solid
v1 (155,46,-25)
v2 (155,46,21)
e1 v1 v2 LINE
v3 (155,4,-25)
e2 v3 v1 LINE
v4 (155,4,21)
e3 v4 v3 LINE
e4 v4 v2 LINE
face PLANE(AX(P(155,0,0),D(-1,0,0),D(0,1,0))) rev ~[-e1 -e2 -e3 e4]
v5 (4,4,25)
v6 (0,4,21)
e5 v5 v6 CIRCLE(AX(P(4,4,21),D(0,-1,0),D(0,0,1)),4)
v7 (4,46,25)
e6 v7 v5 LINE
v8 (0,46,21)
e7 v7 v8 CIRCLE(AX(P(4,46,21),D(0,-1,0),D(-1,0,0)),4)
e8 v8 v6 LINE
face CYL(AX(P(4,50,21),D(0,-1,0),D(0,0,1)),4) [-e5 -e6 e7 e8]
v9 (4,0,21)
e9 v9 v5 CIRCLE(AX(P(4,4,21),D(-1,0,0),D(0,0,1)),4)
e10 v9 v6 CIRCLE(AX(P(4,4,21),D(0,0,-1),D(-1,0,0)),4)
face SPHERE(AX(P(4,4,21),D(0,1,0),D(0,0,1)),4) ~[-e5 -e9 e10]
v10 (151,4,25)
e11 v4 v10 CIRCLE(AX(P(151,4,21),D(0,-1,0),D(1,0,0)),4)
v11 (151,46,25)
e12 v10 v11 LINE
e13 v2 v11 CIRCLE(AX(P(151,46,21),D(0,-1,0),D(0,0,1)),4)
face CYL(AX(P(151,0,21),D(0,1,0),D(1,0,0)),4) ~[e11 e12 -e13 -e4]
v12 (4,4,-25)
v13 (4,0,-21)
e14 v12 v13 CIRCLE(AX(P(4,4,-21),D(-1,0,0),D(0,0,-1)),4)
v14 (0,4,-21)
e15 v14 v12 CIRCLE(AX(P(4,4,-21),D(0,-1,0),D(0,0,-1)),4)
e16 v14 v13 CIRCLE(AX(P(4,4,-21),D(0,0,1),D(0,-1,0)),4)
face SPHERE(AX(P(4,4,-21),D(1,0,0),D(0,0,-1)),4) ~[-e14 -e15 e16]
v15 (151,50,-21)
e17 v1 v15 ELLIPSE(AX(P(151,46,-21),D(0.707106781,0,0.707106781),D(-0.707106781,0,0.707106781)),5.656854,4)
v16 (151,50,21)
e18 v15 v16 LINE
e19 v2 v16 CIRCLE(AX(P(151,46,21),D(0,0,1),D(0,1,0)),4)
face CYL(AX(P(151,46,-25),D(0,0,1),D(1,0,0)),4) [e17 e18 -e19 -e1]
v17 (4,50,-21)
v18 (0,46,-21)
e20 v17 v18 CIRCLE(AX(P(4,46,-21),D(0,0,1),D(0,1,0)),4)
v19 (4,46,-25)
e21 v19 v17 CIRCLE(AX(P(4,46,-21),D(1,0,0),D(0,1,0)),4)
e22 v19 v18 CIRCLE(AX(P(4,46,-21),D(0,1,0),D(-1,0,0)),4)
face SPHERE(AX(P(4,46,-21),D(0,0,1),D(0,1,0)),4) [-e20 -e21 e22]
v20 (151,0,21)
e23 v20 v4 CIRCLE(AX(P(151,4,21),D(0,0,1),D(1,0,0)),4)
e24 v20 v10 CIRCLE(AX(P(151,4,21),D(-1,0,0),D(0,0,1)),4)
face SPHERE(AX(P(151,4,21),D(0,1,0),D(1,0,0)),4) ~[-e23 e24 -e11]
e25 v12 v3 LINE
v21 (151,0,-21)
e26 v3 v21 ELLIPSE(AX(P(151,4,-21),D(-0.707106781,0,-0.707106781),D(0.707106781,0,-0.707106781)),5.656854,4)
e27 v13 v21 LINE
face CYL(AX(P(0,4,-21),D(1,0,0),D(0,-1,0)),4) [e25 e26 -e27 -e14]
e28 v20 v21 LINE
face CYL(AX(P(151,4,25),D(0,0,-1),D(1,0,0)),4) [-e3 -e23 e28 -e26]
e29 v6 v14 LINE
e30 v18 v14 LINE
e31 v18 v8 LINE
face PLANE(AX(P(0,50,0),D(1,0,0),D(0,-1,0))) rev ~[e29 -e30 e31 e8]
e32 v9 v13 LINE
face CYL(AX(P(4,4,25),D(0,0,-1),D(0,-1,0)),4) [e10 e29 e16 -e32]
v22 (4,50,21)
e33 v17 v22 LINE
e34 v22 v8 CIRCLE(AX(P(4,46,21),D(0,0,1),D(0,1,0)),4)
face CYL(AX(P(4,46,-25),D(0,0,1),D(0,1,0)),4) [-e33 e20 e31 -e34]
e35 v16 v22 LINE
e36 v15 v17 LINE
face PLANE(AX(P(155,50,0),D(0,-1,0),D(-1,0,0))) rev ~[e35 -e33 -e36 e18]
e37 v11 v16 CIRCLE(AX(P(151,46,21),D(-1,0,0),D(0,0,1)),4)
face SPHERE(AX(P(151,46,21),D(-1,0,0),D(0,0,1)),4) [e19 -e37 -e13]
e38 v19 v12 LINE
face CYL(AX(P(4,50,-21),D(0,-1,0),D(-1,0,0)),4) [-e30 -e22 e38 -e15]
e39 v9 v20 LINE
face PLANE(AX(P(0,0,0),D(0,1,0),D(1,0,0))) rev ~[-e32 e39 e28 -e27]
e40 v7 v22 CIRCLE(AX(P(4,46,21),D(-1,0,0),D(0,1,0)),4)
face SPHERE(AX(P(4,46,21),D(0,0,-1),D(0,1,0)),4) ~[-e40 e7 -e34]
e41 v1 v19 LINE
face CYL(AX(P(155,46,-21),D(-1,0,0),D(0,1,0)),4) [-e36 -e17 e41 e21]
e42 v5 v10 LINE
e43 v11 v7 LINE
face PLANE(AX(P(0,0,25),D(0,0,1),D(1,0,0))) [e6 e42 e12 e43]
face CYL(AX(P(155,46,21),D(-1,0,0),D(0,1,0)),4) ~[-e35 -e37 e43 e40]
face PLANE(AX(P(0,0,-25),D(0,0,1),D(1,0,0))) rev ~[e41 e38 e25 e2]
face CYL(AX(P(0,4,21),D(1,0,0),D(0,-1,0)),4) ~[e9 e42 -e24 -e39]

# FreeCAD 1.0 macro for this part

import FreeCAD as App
import Part
import Sketcher
Q = App.Units.Quantity


def edges_at(feature, points):
    """Names of the edges that pass closest to the given points."""
    edges = feature.Shape.Edges
    near = lambda p: min(range(len(edges)), key=lambda i: edges[i].distToShape(Part.Vertex(*p))[0])
    return sorted({f"Edge{near(p) + 1}" for p in points})


def add_polygon(sketch, points):
    """Adds a closed chain of lines whose ends are joined by coincident constraints."""
    first, n = sketch.GeometryCount, len(points)
    for a, b in zip(points, points[1:] + points[:1]):
        sketch.addGeometry(Part.LineSegment(App.Vector(*a, 0), App.Vector(*b, 0)), False)
    for i in range(n):
        sketch.addConstraint(Sketcher.Constraint("Coincident", first + i, 2, first + (i + 1) % n, 1))

doc = App.newDocument("Part")
params = doc.addObject("Spreadsheet::Sheet", "Params")
for row, (alias, value) in enumerate([
    ("sketch1_width", "155 mm"),
    ("sketch1_height", "50 mm"),
    ("pad1_length", "50 mm"),
    ("fillet_radius", "4 mm"),
], start=1):
    params.set(f"A{row}", alias)
    params.set(f"B{row}", "=" + value)
    params.setAlias(f"B{row}", alias)

body = doc.addObject("PartDesign::Body", "Body")

# Sketch on XY plane
sketch1 = doc.addObject("Sketcher::SketchObject", "Sketch")
body.addObject(sketch1)
sketch1.AttachmentSupport = (doc.XY_Plane, [""])
sketch1.MapMode = "FlatFace"
add_polygon(sketch1, [(155, 0), (155, 50), (0, 50), (0, 0)])  # lines 0-3
sketch1.addConstraint([
    Sketcher.Constraint("Vertical", 0),
    Sketcher.Constraint("Horizontal", 1),
    Sketcher.Constraint("Vertical", 2),
    Sketcher.Constraint("Horizontal", 3),
    Sketcher.Constraint("Coincident", 2, 2, -1, 1),
    Sketcher.Constraint("DistanceX", 1, 2, 1, 1, Q("155 mm")),
    Sketcher.Constraint("DistanceY", 0, 1, 0, 2, Q("50 mm")),
])
sketch1.setExpression("Constraints[9]", "Params.sketch1_width")
sketch1.setExpression("Constraints[10]", "Params.sketch1_height")
pad1 = doc.addObject("PartDesign::Pad", "Pad")
body.addObject(pad1)
pad1.Profile = sketch1
pad1.setExpression("Length", "Params.pad1_length")
pad1.Midplane = True
doc.recompute()

fillet = doc.addObject("PartDesign::Fillet", "Fillet")
body.addObject(fillet)
fillet.Base = (pad1, edges_at(pad1, [
    (0, 50, 0),
    (77.5, 50, 25),
    (0, 25, 25),
    (155, 25, 25),
    (155, 50, 0),
    (155, 0, 0),
    (77.5, 0, 25),
    (77.5, 0, -25),
    (77.5, 50, -25),
    (0, 25, -25),
    (0, 0, 0),
]))
fillet.setExpression("Radius", "Params.fillet_radius")

doc.recompute()
